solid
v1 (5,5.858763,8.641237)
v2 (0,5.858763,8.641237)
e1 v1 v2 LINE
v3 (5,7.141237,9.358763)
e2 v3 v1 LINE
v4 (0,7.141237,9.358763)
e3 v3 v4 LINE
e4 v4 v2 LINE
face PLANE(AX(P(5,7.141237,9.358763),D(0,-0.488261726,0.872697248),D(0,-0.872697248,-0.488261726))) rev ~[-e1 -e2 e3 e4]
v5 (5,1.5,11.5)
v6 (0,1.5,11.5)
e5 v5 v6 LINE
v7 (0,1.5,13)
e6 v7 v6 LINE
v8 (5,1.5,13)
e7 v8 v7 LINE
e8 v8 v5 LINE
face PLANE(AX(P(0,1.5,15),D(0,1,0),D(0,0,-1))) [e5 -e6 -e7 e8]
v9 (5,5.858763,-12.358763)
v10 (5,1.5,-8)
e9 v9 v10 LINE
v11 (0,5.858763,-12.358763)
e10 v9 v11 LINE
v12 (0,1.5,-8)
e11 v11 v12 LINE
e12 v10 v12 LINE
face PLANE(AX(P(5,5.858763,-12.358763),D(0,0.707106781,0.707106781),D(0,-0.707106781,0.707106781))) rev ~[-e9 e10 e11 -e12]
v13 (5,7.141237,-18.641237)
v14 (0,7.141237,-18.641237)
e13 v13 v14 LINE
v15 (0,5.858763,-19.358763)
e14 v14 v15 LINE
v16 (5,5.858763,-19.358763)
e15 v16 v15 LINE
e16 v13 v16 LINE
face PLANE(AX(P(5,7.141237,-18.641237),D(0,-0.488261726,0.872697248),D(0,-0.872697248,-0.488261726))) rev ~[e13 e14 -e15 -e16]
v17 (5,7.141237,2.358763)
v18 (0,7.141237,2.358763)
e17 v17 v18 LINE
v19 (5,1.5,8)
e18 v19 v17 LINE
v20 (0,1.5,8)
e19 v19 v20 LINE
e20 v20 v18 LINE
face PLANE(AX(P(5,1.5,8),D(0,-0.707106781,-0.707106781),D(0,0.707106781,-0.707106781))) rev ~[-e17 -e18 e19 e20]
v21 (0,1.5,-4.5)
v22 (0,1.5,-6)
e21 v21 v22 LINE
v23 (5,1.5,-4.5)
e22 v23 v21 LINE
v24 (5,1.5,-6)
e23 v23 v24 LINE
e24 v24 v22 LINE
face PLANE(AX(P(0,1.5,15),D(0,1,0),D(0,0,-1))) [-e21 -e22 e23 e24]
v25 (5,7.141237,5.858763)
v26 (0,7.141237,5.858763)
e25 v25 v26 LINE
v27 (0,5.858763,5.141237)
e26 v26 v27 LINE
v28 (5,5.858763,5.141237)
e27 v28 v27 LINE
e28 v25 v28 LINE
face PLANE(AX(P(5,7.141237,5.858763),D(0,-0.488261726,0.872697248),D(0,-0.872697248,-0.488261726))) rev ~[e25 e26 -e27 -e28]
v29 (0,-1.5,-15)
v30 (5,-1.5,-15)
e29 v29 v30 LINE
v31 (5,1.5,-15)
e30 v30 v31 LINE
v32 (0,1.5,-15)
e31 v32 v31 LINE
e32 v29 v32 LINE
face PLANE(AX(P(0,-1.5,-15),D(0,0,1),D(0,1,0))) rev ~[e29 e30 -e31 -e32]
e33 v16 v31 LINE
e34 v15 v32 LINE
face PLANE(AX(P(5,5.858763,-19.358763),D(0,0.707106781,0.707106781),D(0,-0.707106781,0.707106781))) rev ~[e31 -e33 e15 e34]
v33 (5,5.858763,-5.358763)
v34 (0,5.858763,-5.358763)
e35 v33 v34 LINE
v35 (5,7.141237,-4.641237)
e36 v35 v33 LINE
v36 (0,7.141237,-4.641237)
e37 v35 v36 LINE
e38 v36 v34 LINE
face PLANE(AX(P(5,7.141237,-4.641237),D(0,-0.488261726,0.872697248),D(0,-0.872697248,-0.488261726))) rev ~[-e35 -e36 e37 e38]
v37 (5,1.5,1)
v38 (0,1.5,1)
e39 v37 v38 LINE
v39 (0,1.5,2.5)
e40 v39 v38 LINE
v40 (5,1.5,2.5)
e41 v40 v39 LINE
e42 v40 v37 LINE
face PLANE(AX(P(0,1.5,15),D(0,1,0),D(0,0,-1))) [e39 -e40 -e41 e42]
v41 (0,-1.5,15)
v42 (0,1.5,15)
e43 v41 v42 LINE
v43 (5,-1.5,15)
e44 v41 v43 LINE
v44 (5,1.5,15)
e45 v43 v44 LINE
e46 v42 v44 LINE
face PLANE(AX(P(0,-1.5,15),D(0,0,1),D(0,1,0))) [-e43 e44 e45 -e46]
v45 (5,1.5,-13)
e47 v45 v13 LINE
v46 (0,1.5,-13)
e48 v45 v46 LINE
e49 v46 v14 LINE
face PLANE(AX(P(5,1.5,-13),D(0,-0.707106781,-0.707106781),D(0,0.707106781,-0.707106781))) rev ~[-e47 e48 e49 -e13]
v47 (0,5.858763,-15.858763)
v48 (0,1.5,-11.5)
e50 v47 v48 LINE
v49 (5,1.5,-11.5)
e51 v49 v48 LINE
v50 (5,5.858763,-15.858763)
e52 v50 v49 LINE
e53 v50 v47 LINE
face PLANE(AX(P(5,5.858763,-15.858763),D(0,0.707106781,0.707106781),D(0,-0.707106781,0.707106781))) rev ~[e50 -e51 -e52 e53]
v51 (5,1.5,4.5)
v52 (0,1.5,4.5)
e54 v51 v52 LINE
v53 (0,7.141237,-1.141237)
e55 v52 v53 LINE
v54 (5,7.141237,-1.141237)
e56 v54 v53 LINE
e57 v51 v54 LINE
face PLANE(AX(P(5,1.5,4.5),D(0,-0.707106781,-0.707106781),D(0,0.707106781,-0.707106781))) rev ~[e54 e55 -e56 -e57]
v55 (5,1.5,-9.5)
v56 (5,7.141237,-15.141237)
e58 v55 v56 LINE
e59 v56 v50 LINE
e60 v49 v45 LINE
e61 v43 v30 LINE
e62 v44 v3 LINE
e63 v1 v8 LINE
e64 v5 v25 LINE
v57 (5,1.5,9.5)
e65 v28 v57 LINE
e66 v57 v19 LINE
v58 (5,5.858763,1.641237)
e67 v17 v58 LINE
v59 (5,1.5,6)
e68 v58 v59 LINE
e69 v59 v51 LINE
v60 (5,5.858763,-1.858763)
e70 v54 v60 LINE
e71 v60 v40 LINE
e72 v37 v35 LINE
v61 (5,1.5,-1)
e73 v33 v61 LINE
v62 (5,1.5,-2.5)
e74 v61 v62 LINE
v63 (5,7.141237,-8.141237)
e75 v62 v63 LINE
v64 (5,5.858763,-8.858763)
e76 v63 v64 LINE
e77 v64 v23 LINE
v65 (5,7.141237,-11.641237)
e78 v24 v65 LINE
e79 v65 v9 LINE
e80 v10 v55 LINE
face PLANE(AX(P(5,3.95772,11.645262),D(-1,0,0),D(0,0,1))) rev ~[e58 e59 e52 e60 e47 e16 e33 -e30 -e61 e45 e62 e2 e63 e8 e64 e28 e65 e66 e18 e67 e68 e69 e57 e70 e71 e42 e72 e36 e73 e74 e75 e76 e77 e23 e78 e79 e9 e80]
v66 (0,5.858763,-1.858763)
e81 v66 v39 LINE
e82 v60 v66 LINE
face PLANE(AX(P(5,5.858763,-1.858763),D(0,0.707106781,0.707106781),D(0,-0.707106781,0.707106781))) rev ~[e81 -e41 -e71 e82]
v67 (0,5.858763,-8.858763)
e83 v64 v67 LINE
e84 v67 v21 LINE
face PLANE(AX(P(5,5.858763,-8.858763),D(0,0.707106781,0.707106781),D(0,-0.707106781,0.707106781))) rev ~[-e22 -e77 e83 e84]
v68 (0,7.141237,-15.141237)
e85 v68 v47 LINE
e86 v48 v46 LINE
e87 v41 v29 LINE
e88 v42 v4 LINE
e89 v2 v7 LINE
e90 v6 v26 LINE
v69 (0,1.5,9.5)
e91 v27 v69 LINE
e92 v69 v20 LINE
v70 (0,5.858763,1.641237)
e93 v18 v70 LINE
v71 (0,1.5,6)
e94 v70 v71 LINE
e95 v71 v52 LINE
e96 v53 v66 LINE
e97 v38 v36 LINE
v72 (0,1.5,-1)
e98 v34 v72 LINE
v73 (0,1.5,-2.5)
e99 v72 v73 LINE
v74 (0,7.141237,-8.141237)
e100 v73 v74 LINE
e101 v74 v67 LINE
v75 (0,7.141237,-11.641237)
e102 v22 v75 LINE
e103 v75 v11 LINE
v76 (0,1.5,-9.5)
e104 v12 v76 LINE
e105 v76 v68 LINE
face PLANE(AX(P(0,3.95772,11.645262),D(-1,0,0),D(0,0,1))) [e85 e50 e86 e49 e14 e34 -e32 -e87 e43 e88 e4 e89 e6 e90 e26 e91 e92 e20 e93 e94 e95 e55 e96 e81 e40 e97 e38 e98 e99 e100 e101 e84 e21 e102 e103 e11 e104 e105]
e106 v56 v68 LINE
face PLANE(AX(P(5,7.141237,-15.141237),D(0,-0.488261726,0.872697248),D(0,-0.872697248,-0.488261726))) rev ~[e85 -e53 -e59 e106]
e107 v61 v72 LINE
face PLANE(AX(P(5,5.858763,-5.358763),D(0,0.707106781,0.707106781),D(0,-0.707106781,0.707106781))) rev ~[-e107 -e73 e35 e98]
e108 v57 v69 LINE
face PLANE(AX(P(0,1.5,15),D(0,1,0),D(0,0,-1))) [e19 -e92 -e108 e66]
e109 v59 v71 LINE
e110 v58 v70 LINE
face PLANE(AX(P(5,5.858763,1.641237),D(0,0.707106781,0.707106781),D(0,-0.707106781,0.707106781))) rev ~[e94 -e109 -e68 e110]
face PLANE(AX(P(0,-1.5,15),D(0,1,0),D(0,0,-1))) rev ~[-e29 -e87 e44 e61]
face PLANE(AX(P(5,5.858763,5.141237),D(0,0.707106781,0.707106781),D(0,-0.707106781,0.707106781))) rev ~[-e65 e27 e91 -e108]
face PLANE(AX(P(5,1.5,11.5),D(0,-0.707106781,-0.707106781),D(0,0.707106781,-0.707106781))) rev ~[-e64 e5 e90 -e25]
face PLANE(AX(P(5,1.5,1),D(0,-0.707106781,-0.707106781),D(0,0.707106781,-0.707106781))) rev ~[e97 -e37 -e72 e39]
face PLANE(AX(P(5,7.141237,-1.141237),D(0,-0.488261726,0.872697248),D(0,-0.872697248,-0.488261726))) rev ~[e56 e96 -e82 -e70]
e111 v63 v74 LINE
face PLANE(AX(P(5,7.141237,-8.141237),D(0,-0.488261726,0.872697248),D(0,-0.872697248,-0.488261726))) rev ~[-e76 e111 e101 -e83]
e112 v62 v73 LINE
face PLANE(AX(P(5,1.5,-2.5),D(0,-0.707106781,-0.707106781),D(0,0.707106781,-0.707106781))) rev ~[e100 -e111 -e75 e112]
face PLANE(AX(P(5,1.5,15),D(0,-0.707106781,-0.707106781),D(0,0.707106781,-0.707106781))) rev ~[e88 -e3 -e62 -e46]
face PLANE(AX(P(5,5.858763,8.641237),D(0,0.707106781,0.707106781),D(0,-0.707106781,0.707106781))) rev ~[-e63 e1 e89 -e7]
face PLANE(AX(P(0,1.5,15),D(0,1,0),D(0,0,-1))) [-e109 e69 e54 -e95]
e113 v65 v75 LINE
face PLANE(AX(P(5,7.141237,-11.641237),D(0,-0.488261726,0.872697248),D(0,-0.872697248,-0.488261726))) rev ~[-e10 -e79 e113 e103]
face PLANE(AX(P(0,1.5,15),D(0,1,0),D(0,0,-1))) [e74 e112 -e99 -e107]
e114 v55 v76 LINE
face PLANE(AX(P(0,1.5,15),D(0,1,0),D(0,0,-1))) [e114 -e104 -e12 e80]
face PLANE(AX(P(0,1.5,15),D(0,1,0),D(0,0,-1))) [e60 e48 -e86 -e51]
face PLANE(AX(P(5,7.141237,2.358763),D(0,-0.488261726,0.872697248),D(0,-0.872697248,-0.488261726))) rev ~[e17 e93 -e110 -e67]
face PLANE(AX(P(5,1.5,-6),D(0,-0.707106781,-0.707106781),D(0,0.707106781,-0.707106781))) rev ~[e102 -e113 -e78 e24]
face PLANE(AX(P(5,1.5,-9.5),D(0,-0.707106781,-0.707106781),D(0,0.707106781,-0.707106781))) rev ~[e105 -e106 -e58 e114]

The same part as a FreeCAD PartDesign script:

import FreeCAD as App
import Part
import Sketcher

V = App.Vector
Q = App.Units.Quantity

doc = App.newDocument("Part")
body = doc.addObject("PartDesign::Body", "Body")

sketch1 = body.newObject("Sketcher::SketchObject", "Sketch")
sketch1.AttachmentSupport = (doc.getObject("YZ_Plane"), [""])
sketch1.MapMode = "FlatFace"
sketch1.addGeometry(Part.LineSegment(V(1.5, 15, 0), V(-1.5, 15, 0)), False)
sketch1.addGeometry(Part.LineSegment(V(-1.5, 15, 0), V(-1.5, -15, 0)), False)
sketch1.addGeometry(Part.LineSegment(V(-1.5, -15, 0), V(1.5, -15, 0)), False)
sketch1.addGeometry(Part.LineSegment(V(1.5, -15, 0), V(1.5, 15, 0)), False)
sketch1.addConstraint(Sketcher.Constraint("Coincident", 0, 2, 1, 1))
sketch1.addConstraint(Sketcher.Constraint("Coincident", 1, 2, 2, 1))
sketch1.addConstraint(Sketcher.Constraint("Coincident", 2, 2, 3, 1))
sketch1.addConstraint(Sketcher.Constraint("Coincident", 3, 2, 0, 1))
sketch1.addConstraint(Sketcher.Constraint("Horizontal", 0))
sketch1.addConstraint(Sketcher.Constraint("Vertical", 1))
sketch1.addConstraint(Sketcher.Constraint("Horizontal", 2))
sketch1.addConstraint(Sketcher.Constraint("Vertical", 3))
sketch1.addConstraint(Sketcher.Constraint("Symmetric", 0, 2, 2, 2, -1, 1))
sketch1.addConstraint(Sketcher.Constraint("DistanceX", 0, 2, 0, 1, 3.0))
sketch1.addConstraint(Sketcher.Constraint("DistanceY", 1, 2, 1, 1, 30.0))
pad1 = body.newObject("PartDesign::Pad", "Pad")
pad1.Profile = sketch1
pad1.Length = 5

sketch2 = body.newObject("Sketcher::SketchObject", "Sketch001")
sketch2.AttachmentSupport = (doc.getObject("YZ_Plane"), [""])
sketch2.MapMode = "FlatFace"
sketch2.AttachmentOffset = App.Placement(V(0, 0, 5), App.Rotation())
sketch2.addGeometry(Part.LineSegment(V(1.5, -13, 0), V(1.5, -15, 0)), False)
sketch2.addGeometry(Part.LineSegment(V(1.5, -15, 0), V(5.9, -19.4, 0)), False)
sketch2.addGeometry(Part.LineSegment(V(5.9, -19.4, 0), V(7.1, -18.6, 0)), False)
sketch2.addGeometry(Part.LineSegment(V(7.1, -18.6, 0), V(1.5, -13, 0)), False)
sketch2.addConstraint(Sketcher.Constraint("Coincident", 0, 2, 1, 1))
sketch2.addConstraint(Sketcher.Constraint("Coincident", 1, 2, 2, 1))
sketch2.addConstraint(Sketcher.Constraint("Coincident", 2, 2, 3, 1))
sketch2.addConstraint(Sketcher.Constraint("Coincident", 3, 2, 0, 1))
sketch2.addConstraint(Sketcher.Constraint("Vertical", 0))
sketch2.addConstraint(Sketcher.Constraint("Parallel", 1, 3))
sketch2.addConstraint(Sketcher.Constraint("DistanceY", 0, 2, 0, 1, 2.0))
sketch2.addConstraint(Sketcher.Constraint("Angle", 1, Q("-45 deg")))
sketch2.addConstraint(Sketcher.Constraint("DistanceY", 0, 2, -1, 1, 15.0))
sketch2.addConstraint(Sketcher.Constraint("DistanceX", -1, 1, 0, 2, 1.5))
sketch2.addConstraint(Sketcher.Constraint("Distance", 1, 6.164222))
sketch2.addConstraint(Sketcher.Constraint("Distance", 2, 1.469552))
pad2 = body.newObject("PartDesign::Pad", "Pad001")
pad2.Profile = sketch2
pad2.Length = 5
pad2.Reversed = True
doc.recompute()

linearpattern = body.newObject("PartDesign::LinearPattern", "LinearPattern")
linearpattern.Originals = [pad2]
linearpattern.Direction = (doc.getObject("Z_Axis"), [""])
linearpattern.Mode = "offset"
linearpattern.Offset = 3.5
linearpattern.Occurrences = 9
body.Tip = linearpattern

doc.recompute()
